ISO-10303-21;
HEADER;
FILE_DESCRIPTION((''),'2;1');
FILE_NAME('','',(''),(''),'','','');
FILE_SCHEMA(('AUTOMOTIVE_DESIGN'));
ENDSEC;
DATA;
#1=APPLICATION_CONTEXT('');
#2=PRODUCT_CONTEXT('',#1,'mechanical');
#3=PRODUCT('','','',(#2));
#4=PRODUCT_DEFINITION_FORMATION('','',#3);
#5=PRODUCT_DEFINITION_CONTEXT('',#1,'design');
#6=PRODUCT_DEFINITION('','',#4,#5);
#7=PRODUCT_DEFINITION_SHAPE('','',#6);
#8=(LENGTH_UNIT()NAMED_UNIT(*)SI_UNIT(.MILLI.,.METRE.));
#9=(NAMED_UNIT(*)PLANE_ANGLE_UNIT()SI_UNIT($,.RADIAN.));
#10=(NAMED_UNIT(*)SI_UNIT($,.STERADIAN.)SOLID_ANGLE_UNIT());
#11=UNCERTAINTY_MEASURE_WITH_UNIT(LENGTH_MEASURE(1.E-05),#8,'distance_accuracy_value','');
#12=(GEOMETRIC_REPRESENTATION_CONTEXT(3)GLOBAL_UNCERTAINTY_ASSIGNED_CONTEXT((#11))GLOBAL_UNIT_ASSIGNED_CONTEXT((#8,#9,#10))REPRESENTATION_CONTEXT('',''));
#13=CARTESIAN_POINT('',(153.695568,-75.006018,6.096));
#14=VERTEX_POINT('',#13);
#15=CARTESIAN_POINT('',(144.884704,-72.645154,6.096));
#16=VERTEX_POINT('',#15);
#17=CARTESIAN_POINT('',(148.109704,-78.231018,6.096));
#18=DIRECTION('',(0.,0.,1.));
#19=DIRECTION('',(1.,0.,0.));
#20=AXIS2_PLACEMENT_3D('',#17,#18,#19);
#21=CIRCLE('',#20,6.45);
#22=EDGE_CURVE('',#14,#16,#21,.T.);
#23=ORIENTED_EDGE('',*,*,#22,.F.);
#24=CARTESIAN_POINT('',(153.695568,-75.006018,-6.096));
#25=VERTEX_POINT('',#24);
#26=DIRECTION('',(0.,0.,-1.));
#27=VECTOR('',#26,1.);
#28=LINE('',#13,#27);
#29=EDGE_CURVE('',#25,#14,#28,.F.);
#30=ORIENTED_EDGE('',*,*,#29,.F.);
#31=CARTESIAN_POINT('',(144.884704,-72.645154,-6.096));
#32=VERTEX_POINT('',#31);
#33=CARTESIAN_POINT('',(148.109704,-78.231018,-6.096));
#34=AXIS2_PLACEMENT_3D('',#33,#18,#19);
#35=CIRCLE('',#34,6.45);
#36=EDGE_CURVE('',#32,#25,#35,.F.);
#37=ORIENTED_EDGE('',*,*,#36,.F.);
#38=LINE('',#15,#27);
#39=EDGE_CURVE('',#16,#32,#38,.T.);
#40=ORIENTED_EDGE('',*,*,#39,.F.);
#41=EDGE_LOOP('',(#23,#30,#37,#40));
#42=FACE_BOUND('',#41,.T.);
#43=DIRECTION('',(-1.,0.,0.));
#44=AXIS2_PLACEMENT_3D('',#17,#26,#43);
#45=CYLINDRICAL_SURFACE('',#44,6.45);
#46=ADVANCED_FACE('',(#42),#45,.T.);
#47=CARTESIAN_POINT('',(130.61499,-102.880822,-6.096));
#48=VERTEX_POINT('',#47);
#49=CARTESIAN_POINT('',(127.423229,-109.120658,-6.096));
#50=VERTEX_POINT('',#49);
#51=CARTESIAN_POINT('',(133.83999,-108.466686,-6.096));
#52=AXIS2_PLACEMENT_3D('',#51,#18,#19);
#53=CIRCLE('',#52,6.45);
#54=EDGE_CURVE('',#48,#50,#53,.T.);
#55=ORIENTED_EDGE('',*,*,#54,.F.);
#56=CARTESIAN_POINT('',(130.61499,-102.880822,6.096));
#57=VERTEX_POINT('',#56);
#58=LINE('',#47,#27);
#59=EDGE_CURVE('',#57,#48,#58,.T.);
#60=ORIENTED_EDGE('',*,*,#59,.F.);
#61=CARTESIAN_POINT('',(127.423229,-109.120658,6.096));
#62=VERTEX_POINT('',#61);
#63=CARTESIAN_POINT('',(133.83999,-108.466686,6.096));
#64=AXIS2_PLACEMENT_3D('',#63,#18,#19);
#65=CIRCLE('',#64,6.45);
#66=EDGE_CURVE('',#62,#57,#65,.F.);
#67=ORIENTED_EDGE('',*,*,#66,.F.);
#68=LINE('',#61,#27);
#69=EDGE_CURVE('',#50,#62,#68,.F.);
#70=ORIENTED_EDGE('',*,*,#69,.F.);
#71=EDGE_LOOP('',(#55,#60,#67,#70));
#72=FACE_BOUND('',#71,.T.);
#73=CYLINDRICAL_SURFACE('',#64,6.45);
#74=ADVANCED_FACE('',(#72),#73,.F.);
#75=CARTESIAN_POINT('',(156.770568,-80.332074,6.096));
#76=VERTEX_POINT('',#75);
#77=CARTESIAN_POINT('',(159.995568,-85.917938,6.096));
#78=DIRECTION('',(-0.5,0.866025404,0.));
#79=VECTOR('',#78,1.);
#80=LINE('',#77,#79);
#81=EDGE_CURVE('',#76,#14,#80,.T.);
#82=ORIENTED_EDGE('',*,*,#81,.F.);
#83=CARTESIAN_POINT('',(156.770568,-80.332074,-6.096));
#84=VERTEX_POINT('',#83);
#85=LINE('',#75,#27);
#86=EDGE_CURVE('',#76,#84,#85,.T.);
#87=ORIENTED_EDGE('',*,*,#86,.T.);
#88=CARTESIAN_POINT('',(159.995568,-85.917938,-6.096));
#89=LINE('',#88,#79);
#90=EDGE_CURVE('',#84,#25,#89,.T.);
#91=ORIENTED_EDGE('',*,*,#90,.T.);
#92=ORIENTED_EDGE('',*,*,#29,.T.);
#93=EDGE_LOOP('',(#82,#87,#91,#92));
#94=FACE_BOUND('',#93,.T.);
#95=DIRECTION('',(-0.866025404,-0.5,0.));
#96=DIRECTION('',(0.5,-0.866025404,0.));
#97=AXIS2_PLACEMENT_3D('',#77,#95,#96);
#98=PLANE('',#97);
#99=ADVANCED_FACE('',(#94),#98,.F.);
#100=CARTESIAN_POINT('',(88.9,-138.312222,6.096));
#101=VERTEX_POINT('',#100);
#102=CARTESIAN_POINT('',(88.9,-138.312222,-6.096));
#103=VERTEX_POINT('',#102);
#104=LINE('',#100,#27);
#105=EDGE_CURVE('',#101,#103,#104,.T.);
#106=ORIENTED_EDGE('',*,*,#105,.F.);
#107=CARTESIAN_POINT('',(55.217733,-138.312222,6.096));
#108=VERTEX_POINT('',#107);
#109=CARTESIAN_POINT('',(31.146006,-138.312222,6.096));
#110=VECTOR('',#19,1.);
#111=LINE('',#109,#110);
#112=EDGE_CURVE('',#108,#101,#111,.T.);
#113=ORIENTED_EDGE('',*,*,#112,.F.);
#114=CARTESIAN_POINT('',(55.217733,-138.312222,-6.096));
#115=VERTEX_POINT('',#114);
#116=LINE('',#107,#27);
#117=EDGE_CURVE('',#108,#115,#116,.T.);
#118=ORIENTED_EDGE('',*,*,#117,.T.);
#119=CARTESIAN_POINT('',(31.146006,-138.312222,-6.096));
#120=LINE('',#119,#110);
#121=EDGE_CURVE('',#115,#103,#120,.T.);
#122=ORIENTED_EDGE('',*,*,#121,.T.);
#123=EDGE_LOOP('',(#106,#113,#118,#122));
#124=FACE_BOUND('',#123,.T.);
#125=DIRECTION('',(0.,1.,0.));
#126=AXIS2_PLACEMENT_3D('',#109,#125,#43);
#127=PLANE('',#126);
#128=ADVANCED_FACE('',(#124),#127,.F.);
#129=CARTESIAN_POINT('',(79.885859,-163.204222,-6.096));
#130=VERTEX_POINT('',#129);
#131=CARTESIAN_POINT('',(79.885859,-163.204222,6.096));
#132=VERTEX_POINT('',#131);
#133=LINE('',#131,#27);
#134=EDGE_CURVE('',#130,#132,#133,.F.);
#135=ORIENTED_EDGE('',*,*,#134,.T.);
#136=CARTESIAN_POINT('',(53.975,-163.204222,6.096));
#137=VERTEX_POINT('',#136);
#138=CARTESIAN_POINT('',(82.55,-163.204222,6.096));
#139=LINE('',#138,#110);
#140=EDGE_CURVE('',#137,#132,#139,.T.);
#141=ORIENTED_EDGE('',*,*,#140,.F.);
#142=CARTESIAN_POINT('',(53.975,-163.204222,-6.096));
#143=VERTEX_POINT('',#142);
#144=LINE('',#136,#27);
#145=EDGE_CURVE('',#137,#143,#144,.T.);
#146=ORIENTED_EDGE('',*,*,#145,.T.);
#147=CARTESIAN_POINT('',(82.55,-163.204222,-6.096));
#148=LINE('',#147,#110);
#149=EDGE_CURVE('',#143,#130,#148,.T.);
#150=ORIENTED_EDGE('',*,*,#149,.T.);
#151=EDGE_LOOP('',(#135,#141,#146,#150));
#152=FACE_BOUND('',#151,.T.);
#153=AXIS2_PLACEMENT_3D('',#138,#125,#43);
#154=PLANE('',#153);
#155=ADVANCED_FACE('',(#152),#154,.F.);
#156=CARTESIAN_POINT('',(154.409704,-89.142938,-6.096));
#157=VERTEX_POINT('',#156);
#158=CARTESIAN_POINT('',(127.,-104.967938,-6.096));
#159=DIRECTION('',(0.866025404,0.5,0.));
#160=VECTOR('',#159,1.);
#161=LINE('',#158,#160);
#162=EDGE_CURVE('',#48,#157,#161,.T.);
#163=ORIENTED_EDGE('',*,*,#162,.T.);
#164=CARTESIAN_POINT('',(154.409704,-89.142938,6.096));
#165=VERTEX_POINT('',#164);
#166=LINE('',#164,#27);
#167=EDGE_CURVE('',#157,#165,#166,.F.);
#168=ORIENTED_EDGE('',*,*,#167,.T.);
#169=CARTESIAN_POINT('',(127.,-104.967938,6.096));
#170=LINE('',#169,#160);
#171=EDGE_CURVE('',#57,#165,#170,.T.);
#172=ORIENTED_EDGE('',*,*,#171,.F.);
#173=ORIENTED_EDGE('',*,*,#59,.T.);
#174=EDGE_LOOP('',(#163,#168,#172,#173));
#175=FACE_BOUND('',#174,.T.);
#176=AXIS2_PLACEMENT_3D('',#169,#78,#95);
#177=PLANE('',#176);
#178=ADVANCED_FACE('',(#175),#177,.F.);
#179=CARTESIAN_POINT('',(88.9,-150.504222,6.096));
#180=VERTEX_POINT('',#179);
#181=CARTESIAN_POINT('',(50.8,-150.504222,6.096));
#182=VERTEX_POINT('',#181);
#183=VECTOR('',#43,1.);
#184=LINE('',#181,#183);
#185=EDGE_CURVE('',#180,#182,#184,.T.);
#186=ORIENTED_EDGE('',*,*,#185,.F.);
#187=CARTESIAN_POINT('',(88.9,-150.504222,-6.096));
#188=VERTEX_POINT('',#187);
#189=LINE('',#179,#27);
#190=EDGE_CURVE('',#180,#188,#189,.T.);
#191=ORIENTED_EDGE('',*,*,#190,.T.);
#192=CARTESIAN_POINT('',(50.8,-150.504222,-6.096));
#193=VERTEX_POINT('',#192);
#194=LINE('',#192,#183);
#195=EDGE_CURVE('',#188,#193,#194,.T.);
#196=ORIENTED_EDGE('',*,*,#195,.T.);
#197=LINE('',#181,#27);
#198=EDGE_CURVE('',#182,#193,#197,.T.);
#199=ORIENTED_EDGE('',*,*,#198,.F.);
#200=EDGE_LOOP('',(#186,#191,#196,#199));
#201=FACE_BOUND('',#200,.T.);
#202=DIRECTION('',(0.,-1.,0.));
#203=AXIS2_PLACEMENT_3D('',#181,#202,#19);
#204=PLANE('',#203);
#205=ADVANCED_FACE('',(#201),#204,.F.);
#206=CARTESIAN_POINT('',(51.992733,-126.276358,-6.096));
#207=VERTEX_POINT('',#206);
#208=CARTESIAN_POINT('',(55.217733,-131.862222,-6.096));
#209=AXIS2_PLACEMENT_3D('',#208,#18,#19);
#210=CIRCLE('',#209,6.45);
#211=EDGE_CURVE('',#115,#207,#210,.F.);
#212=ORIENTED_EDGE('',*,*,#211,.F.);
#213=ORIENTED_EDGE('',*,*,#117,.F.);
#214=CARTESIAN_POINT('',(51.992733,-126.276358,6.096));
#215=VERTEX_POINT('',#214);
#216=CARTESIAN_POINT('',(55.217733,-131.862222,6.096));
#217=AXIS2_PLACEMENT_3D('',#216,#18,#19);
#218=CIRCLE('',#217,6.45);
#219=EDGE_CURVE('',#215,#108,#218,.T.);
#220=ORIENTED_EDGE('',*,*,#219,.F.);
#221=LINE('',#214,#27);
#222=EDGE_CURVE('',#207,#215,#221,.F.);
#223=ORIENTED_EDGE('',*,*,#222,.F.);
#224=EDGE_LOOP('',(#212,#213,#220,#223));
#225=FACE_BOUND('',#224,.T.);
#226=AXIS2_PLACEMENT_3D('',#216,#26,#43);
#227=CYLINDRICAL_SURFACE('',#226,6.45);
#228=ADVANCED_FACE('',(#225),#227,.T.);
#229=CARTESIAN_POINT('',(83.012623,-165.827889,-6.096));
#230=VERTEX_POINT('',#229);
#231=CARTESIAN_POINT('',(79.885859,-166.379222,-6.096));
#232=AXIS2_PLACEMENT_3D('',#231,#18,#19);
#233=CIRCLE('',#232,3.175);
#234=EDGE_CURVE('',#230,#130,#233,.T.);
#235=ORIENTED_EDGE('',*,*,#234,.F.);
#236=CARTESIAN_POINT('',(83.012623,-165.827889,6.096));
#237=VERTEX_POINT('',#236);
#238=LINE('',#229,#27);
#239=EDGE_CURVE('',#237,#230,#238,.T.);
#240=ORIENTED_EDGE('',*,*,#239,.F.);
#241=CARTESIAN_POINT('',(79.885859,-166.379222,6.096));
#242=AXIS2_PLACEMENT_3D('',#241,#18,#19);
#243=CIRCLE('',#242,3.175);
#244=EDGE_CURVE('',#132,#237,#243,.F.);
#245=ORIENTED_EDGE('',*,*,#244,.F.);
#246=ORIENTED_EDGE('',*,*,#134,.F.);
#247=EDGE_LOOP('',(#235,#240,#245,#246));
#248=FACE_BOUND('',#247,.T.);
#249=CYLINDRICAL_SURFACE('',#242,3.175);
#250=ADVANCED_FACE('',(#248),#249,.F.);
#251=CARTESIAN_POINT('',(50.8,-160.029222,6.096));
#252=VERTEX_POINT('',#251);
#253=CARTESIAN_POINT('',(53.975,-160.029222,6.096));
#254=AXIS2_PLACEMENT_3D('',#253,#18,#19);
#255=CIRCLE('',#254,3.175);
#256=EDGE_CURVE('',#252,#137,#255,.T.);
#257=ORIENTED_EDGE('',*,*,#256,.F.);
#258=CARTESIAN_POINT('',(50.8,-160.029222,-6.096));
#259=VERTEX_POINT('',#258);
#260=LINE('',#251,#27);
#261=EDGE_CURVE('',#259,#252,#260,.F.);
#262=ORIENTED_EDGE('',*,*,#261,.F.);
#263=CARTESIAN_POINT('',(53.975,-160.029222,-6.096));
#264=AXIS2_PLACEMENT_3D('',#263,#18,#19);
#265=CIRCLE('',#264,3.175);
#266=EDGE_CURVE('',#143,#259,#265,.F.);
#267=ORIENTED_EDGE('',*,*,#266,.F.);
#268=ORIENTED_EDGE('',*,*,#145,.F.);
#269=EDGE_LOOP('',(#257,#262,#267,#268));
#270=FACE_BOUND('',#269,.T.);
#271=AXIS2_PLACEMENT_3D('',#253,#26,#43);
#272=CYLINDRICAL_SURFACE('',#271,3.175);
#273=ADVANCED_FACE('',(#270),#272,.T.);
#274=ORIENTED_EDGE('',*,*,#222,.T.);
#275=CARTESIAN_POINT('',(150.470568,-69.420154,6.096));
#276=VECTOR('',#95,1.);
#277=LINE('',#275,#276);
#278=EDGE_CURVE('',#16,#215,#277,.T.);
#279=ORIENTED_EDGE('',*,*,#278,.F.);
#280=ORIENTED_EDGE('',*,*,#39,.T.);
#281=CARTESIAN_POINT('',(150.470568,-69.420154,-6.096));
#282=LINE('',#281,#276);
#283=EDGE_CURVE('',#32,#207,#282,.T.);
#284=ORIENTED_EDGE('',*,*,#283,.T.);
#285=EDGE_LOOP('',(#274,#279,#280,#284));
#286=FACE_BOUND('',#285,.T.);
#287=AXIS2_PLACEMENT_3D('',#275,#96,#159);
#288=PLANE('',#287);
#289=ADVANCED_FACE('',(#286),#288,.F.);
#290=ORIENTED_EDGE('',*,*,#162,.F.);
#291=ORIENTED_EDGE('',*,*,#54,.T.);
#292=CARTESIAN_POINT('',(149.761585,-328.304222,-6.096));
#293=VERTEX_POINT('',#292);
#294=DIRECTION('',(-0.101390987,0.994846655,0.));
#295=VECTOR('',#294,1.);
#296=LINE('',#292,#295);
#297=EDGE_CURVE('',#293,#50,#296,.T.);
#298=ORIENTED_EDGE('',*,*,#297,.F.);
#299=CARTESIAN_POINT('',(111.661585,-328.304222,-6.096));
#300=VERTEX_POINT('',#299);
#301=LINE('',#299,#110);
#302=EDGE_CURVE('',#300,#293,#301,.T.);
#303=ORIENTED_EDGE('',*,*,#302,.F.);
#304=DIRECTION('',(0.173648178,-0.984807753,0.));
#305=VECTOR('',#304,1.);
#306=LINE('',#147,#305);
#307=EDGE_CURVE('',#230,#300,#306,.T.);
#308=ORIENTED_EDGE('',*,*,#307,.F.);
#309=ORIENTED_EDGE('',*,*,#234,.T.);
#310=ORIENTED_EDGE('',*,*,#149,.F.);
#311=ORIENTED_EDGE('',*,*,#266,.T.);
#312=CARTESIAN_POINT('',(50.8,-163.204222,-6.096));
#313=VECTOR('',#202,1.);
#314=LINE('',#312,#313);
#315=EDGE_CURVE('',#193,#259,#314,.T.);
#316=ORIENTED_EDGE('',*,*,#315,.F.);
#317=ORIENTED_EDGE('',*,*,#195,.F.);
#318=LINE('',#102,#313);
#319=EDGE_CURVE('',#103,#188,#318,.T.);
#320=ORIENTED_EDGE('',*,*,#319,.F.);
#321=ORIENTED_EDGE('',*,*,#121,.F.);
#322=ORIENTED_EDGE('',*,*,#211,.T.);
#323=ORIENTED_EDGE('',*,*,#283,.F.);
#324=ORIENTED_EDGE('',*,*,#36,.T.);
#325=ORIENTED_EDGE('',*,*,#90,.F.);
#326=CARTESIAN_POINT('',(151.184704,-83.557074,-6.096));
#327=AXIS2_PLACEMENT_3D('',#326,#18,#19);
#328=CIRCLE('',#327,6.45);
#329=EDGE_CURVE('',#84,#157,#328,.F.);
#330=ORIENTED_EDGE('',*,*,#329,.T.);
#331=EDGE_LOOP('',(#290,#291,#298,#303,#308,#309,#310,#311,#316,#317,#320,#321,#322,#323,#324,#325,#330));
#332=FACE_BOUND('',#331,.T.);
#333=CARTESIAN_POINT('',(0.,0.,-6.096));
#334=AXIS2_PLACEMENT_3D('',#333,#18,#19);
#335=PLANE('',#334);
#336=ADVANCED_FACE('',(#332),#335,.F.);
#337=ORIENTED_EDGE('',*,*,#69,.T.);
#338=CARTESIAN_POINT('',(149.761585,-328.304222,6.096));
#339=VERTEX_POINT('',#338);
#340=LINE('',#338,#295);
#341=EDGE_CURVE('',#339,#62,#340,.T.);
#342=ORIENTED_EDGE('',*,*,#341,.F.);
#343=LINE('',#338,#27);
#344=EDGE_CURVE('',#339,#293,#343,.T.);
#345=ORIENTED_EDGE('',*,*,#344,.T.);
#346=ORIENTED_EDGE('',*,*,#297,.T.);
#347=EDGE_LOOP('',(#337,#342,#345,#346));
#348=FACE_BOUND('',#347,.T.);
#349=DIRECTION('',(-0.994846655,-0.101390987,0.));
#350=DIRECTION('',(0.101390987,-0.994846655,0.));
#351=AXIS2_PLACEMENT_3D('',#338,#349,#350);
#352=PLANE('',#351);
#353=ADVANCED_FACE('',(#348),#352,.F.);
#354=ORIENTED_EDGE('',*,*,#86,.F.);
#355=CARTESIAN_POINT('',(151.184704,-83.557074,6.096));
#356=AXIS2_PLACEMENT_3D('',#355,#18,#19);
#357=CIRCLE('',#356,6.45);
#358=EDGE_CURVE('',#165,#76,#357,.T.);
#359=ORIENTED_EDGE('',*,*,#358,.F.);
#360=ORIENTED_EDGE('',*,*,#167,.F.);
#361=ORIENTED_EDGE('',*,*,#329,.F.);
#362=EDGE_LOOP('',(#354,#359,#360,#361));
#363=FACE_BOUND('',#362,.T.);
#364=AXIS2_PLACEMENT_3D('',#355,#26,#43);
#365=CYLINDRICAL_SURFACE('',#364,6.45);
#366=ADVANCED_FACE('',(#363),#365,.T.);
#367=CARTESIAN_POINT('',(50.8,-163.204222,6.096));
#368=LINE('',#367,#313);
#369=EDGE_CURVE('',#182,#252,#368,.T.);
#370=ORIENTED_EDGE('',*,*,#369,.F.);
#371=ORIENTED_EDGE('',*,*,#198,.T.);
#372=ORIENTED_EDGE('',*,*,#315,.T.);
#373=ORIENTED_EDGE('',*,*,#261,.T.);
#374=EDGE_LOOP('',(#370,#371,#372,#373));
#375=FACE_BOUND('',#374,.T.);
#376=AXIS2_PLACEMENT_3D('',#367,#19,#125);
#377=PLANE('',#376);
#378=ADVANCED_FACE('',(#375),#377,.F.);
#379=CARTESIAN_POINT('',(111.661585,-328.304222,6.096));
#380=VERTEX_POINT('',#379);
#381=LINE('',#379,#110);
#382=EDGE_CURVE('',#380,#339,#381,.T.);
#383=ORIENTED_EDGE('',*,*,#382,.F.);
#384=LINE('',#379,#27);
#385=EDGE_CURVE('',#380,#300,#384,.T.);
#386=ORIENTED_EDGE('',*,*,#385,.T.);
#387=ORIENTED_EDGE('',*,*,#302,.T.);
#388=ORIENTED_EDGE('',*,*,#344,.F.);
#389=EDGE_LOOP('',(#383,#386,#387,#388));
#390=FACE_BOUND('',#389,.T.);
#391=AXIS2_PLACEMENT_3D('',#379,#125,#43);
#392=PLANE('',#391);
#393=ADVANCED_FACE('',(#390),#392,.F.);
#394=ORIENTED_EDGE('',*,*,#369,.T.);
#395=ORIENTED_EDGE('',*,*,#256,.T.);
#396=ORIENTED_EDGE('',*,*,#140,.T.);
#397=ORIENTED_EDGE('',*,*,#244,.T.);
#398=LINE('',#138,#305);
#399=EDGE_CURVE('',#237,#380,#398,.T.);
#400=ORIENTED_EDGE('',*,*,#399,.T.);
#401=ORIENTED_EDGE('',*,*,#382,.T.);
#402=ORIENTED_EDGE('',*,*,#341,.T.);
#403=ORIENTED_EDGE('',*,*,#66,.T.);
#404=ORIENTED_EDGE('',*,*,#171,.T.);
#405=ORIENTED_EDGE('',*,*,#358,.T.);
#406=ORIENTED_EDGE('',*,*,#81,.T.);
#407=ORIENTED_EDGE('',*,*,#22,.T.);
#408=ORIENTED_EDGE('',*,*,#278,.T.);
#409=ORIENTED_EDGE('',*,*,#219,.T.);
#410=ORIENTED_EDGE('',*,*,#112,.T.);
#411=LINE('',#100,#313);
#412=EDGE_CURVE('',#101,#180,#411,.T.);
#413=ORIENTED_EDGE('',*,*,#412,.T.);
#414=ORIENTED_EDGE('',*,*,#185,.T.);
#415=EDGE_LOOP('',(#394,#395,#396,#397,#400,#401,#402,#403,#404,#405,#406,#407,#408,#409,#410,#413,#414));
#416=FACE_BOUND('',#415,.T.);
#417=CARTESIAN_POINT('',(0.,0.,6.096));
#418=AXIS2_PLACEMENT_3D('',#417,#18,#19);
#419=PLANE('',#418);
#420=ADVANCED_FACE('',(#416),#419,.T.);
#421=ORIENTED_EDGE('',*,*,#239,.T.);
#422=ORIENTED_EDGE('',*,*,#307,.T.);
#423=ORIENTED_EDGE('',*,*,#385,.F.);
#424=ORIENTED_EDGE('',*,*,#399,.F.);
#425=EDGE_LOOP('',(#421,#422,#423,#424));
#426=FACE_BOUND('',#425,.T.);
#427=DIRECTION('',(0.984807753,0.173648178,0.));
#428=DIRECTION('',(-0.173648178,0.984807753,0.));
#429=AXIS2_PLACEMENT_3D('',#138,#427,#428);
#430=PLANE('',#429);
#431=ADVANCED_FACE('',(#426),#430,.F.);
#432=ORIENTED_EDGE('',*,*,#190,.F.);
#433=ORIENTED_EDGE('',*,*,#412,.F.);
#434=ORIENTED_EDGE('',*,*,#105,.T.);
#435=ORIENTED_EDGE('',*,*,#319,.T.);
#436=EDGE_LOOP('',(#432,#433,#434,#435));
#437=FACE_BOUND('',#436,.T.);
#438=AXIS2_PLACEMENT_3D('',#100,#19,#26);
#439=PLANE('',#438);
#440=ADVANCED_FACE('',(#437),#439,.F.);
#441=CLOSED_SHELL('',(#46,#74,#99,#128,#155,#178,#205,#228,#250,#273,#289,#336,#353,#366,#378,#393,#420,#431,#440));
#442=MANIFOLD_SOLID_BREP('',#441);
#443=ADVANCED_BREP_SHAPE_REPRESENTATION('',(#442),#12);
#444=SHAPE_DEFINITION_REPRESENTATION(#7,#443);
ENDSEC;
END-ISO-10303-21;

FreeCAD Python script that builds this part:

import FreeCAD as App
import Part
import Sketcher
from FreeCAD import Vector
Q = App.Units.Quantity


def edges_at(feature, points):
    """Names of the edges that pass closest to the given points."""
    edges = feature.Shape.Edges
    near = lambda p: min(range(len(edges)), key=lambda i: edges[i].distToShape(Part.Vertex(*p))[0])
    return sorted({f"Edge{near(p) + 1}" for p in points})


def add_polygon(sketch, points):
    """Adds a closed chain of lines whose ends are joined by coincident constraints."""
    first, n = sketch.GeometryCount, len(points)
    for a, b in zip(points, points[1:] + points[:1]):
        sketch.addGeometry(Part.LineSegment(App.Vector(*a, 0), App.Vector(*b, 0)), False)
    for i in range(n):
        sketch.addConstraint(Sketcher.Constraint("Coincident", first + i, 2, first + (i + 1) % n, 1))

doc = App.newDocument("Part")
params = doc.addObject("Spreadsheet::Sheet", "Params")
for row, (alias, value) in enumerate([
    ("sketch1_width", "1.5 in"),
    ("sketch1_height", "0.5 in"),
    ("sketch1_length", "1.5 in"),
    ("sketch1_width2", "1.25 in"),
    ("sketch1_height2", "0.48 in"),
    ("pad1_length", "0.48 in"),
    ("fillet_radius", "6.45 mm"),
    ("fillet2_radius", "0.125 in"),
], start=1):
    params.set(f"A{row}", alias)
    params.set(f"B{row}", "=" + value)
    params.setAlias(f"B{row}", alias)

body = doc.addObject("PartDesign::Body", "Body")

# Sketch on XY plane
sketch1 = body.newObject("Sketcher::SketchObject", "Sketch")
sketch1.AttachmentSupport = (doc.getObject("XY_Plane"), [""])
sketch1.MapMode = "FlatFace"
add_polygon(sketch1, [(159.995568, -85.917938), (150.470568, -69.420154), (31.146006, -138.312222), (88.9, -138.312222), (88.9, -150.504222), (50.8, -150.504222), (50.8, -163.204222), (82.55, -163.204222), (111.661585, -328.304222), (149.761585, -328.304222), (127, -104.967938)])  # lines 0-10
sketch1.addConstraint([
    Sketcher.Constraint("Horizontal", 2),
    Sketcher.Constraint("Vertical", 3),
    Sketcher.Constraint("Horizontal", 4),
    Sketcher.Constraint("Vertical", 5),
    Sketcher.Constraint("Horizontal", 6),
    Sketcher.Constraint("Horizontal", 8),
    Sketcher.Constraint("Perpendicular", 0, 1),
    Sketcher.Constraint("Parallel", 1, 10),
    Sketcher.Constraint("Equal", 4, 8),
    Sketcher.Constraint("DistanceX", 4, 2, 4, 1, Q("1.5 in")),
    Sketcher.Constraint("DistanceY", 5, 2, 5, 1, Q("0.5 in")),
    Sketcher.Constraint("DistanceX", -1, 1, 4, 2, Q("2 in")),
    Sketcher.Constraint("DistanceX", -1, 1, 9, 2, Q("5 in")),
    Sketcher.Constraint("Angle", 0, Q("120 deg")),
    Sketcher.Constraint("Angle", 7, Q("-80 deg")),
    Sketcher.Constraint("DistanceY", 7, 2, 3, 2, Q("7 in")),
    Sketcher.Constraint("Distance", 10, Q("1.5 in")),
    Sketcher.Constraint("DistanceX", 6, 1, 6, 2, Q("1.25 in")),
    Sketcher.Constraint("DistanceY", 3, 2, 3, 1, Q("0.48 in")),
    Sketcher.Constraint("Distance", 0, Q("0.75 in")),
    Sketcher.Constraint("DistanceX", 2, 1, 2, 2, Q("57.753994 mm")),
    Sketcher.Constraint("DistanceY", 9, 2, -1, 1, Q("104.967938 mm")),
])
sketch1.setExpression("Constraints[20]", "Params.sketch1_width")
sketch1.setExpression("Constraints[21]", "Params.sketch1_height")
sketch1.setExpression("Constraints[27]", "Params.sketch1_length")
sketch1.setExpression("Constraints[28]", "Params.sketch1_width2")
sketch1.setExpression("Constraints[29]", "Params.sketch1_height2")
pad1 = body.newObject("PartDesign::Pad", "Pad")
pad1.Profile = sketch1
pad1.setExpression("Length", "Params.pad1_length")
pad1.Midplane = True
doc.recompute()

fillet = body.newObject("PartDesign::Fillet", "Fillet")
fillet.Base = (pad1, edges_at(pad1, [
    (127, -104.968, 0),
    (31.146, -138.312, 0),
    (150.471, -69.42, 0),
    (159.996, -85.918, 0),
]))
fillet.setExpression("Radius", "Params.fillet_radius")
doc.recompute()

fillet2 = body.newObject("PartDesign::Fillet", "Fillet001")
fillet2.Base = (fillet, edges_at(fillet, [(82.55, -163.204, 0), (50.8, -163.204, 0)]))
fillet2.setExpression("Radius", "Params.fillet2_radius")

doc.recompute()
